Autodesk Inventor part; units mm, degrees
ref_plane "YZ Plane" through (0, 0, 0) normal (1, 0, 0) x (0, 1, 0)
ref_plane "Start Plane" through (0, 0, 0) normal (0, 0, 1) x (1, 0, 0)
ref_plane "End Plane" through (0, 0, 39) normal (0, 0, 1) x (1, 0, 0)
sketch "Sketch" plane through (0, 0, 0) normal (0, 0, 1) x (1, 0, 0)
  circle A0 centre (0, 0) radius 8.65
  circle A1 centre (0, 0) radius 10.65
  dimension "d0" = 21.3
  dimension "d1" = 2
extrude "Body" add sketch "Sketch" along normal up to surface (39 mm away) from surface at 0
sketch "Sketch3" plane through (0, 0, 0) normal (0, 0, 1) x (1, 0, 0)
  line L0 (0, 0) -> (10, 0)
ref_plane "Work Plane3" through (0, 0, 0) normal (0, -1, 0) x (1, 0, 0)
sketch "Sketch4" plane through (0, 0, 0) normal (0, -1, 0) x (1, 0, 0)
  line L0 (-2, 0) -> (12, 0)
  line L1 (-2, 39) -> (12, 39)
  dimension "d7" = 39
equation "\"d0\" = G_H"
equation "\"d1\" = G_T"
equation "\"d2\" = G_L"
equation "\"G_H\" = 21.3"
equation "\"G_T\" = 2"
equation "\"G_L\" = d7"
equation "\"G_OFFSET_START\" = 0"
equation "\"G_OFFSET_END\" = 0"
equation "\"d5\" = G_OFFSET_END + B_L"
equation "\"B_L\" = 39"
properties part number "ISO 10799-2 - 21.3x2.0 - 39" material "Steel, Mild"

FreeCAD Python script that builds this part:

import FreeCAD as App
import Part
import Sketcher

V = App.Vector
Q = App.Units.Quantity

doc = App.newDocument("Part")
params = doc.addObject("Spreadsheet::Sheet", "Params")
for row, (alias, value) in enumerate([
    ("sketch1_diameter", "21.3 mm"),
    ("sketch1_diameter2", "17.3 mm"),
    ("pad1_length", "39 mm"),
], start=1):
    params.set(f"A{row}", alias)
    params.set(f"B{row}", "=" + value)
    params.setAlias(f"B{row}", alias)

body = doc.addObject("PartDesign::Body", "Body")

# Sketch on XY plane
sketch1 = doc.addObject("Sketcher::SketchObject", "Sketch")
body.addObject(sketch1)
sketch1.AttachmentSupport = (doc.XY_Plane, [""])
sketch1.MapMode = "FlatFace"
sketch1.addGeometry([
    Part.Circle(V(0, 0, 0), V(0, 0, 1), 11),
    Part.Circle(V(0, 0, 0), V(0, 0, 1), 9),
], False)
sketch1.addConstraint([
    Sketcher.Constraint("Coincident", 0, 3, -1, 1),
    Sketcher.Constraint("Coincident", 1, 3, -1, 1),
    Sketcher.Constraint("Diameter", 0, Q("21.3 mm")),
    Sketcher.Constraint("Diameter", 1, Q("17.3 mm")),
])
sketch1.setExpression("Constraints[2]", "Params.sketch1_diameter")
sketch1.setExpression("Constraints[3]", "Params.sketch1_diameter2")
pad1 = doc.addObject("PartDesign::Pad", "Pad")
body.addObject(pad1)
pad1.Profile = sketch1
pad1.setExpression("Length", "Params.pad1_length")

doc.recompute()
